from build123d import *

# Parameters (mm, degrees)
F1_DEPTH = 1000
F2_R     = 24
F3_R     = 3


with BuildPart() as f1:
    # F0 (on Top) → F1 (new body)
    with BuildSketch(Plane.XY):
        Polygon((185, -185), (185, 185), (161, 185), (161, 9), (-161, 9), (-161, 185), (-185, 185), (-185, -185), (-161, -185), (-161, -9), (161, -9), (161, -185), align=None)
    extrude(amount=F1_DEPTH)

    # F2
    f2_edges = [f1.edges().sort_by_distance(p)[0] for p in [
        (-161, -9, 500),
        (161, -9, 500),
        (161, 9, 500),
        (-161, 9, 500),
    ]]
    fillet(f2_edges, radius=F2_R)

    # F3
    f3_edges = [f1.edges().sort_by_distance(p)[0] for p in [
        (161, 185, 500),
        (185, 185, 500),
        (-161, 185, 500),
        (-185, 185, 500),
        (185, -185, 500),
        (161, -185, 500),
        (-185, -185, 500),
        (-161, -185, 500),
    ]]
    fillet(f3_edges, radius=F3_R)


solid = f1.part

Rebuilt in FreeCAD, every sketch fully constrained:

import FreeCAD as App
import Part
import Sketcher
from FreeCAD import Vector
Q = App.Units.Quantity


def edges_at(feature, points):
    """Names of the edges that pass closest to the given points."""
    edges = feature.Shape.Edges
    near = lambda p: min(range(len(edges)), key=lambda i: edges[i].distToShape(Part.Vertex(*p))[0])
    return sorted({f"Edge{near(p) + 1}" for p in points})


def add_polygon(sketch, points):
    """Adds a closed chain of lines whose ends are joined by coincident constraints."""
    first, n = sketch.GeometryCount, len(points)
    for a, b in zip(points, points[1:] + points[:1]):
        sketch.addGeometry(Part.LineSegment(App.Vector(*a, 0), App.Vector(*b, 0)), False)
    for i in range(n):
        sketch.addConstraint(Sketcher.Constraint("Coincident", first + i, 2, first + (i + 1) % n, 1))

doc = App.newDocument("Part")
body = doc.addObject("PartDesign::Body", "Body")

sketch1 = doc.addObject("Sketcher::SketchObject", "Sketch")
body.addObject(sketch1)
sketch1.AttachmentSupport = (doc.XY_Plane, [""])
sketch1.MapMode = "FlatFace"
add_polygon(sketch1, [(185, -185), (185, 185), (161, 185), (161, 9), (-161, 9), (-161, 185), (-185, 185), (-185, -185), (-161, -185), (-161, -9), (161, -9), (161, -185)])
sketch1.addConstraint([
    Sketcher.Constraint("Vertical", 0),
    Sketcher.Constraint("Horizontal", 1),
    Sketcher.Constraint("Vertical", 2),
    Sketcher.Constraint("Horizontal", 3),
    Sketcher.Constraint("Vertical", 4),
    Sketcher.Constraint("Horizontal", 5),
    Sketcher.Constraint("Vertical", 6),
    Sketcher.Constraint("Horizontal", 7),
    Sketcher.Constraint("Vertical", 8),
    Sketcher.Constraint("Horizontal", 9),
    Sketcher.Constraint("Vertical", 10),
    Sketcher.Constraint("Horizontal", 11),
    Sketcher.Constraint("Symmetric", 0, 2, 6, 2, -1, 1),
    Sketcher.Constraint("Symmetric", 2, 2, 8, 2, -1, 1),
    Sketcher.Constraint("Symmetric", 4, 2, 10, 2, -1, 1),
    Sketcher.Constraint("Symmetric", 1, 2, 4, 2, -2),
    Sketcher.Constraint("DistanceX", 1, 2, 1, 1, Q("24 mm")),
    Sketcher.Constraint("DistanceX", 3, 2, 3, 1, Q("322 mm")),
    Sketcher.Constraint("DistanceY", 0, 1, 0, 2, Q("370 mm")),
    Sketcher.Constraint("DistanceY", 2, 2, 2, 1, Q("176 mm")),
])
pad1 = doc.addObject("PartDesign::Pad", "Pad")
body.addObject(pad1)
pad1.Profile = sketch1
pad1.Length = 1000
doc.recompute()

fillet = doc.addObject("PartDesign::Fillet", "Fillet")
body.addObject(fillet)
fillet.Base = (pad1, edges_at(pad1, [
    (-161, -9, 500),
    (161, -9, 500),
    (161, 9, 500),
    (-161, 9, 500),
]))
fillet.Radius = 24
doc.recompute()

fillet2 = doc.addObject("PartDesign::Fillet", "Fillet001")
body.addObject(fillet2)
fillet2.Base = (fillet, edges_at(fillet, [
    (161, 185, 500),
    (185, 185, 500),
    (-161, 185, 500),
    (-185, 185, 500),
    (185, -185, 500),
    (161, -185, 500),
    (-185, -185, 500),
    (-161, -185, 500),
]))
fillet2.Radius = 3

doc.recompute()
